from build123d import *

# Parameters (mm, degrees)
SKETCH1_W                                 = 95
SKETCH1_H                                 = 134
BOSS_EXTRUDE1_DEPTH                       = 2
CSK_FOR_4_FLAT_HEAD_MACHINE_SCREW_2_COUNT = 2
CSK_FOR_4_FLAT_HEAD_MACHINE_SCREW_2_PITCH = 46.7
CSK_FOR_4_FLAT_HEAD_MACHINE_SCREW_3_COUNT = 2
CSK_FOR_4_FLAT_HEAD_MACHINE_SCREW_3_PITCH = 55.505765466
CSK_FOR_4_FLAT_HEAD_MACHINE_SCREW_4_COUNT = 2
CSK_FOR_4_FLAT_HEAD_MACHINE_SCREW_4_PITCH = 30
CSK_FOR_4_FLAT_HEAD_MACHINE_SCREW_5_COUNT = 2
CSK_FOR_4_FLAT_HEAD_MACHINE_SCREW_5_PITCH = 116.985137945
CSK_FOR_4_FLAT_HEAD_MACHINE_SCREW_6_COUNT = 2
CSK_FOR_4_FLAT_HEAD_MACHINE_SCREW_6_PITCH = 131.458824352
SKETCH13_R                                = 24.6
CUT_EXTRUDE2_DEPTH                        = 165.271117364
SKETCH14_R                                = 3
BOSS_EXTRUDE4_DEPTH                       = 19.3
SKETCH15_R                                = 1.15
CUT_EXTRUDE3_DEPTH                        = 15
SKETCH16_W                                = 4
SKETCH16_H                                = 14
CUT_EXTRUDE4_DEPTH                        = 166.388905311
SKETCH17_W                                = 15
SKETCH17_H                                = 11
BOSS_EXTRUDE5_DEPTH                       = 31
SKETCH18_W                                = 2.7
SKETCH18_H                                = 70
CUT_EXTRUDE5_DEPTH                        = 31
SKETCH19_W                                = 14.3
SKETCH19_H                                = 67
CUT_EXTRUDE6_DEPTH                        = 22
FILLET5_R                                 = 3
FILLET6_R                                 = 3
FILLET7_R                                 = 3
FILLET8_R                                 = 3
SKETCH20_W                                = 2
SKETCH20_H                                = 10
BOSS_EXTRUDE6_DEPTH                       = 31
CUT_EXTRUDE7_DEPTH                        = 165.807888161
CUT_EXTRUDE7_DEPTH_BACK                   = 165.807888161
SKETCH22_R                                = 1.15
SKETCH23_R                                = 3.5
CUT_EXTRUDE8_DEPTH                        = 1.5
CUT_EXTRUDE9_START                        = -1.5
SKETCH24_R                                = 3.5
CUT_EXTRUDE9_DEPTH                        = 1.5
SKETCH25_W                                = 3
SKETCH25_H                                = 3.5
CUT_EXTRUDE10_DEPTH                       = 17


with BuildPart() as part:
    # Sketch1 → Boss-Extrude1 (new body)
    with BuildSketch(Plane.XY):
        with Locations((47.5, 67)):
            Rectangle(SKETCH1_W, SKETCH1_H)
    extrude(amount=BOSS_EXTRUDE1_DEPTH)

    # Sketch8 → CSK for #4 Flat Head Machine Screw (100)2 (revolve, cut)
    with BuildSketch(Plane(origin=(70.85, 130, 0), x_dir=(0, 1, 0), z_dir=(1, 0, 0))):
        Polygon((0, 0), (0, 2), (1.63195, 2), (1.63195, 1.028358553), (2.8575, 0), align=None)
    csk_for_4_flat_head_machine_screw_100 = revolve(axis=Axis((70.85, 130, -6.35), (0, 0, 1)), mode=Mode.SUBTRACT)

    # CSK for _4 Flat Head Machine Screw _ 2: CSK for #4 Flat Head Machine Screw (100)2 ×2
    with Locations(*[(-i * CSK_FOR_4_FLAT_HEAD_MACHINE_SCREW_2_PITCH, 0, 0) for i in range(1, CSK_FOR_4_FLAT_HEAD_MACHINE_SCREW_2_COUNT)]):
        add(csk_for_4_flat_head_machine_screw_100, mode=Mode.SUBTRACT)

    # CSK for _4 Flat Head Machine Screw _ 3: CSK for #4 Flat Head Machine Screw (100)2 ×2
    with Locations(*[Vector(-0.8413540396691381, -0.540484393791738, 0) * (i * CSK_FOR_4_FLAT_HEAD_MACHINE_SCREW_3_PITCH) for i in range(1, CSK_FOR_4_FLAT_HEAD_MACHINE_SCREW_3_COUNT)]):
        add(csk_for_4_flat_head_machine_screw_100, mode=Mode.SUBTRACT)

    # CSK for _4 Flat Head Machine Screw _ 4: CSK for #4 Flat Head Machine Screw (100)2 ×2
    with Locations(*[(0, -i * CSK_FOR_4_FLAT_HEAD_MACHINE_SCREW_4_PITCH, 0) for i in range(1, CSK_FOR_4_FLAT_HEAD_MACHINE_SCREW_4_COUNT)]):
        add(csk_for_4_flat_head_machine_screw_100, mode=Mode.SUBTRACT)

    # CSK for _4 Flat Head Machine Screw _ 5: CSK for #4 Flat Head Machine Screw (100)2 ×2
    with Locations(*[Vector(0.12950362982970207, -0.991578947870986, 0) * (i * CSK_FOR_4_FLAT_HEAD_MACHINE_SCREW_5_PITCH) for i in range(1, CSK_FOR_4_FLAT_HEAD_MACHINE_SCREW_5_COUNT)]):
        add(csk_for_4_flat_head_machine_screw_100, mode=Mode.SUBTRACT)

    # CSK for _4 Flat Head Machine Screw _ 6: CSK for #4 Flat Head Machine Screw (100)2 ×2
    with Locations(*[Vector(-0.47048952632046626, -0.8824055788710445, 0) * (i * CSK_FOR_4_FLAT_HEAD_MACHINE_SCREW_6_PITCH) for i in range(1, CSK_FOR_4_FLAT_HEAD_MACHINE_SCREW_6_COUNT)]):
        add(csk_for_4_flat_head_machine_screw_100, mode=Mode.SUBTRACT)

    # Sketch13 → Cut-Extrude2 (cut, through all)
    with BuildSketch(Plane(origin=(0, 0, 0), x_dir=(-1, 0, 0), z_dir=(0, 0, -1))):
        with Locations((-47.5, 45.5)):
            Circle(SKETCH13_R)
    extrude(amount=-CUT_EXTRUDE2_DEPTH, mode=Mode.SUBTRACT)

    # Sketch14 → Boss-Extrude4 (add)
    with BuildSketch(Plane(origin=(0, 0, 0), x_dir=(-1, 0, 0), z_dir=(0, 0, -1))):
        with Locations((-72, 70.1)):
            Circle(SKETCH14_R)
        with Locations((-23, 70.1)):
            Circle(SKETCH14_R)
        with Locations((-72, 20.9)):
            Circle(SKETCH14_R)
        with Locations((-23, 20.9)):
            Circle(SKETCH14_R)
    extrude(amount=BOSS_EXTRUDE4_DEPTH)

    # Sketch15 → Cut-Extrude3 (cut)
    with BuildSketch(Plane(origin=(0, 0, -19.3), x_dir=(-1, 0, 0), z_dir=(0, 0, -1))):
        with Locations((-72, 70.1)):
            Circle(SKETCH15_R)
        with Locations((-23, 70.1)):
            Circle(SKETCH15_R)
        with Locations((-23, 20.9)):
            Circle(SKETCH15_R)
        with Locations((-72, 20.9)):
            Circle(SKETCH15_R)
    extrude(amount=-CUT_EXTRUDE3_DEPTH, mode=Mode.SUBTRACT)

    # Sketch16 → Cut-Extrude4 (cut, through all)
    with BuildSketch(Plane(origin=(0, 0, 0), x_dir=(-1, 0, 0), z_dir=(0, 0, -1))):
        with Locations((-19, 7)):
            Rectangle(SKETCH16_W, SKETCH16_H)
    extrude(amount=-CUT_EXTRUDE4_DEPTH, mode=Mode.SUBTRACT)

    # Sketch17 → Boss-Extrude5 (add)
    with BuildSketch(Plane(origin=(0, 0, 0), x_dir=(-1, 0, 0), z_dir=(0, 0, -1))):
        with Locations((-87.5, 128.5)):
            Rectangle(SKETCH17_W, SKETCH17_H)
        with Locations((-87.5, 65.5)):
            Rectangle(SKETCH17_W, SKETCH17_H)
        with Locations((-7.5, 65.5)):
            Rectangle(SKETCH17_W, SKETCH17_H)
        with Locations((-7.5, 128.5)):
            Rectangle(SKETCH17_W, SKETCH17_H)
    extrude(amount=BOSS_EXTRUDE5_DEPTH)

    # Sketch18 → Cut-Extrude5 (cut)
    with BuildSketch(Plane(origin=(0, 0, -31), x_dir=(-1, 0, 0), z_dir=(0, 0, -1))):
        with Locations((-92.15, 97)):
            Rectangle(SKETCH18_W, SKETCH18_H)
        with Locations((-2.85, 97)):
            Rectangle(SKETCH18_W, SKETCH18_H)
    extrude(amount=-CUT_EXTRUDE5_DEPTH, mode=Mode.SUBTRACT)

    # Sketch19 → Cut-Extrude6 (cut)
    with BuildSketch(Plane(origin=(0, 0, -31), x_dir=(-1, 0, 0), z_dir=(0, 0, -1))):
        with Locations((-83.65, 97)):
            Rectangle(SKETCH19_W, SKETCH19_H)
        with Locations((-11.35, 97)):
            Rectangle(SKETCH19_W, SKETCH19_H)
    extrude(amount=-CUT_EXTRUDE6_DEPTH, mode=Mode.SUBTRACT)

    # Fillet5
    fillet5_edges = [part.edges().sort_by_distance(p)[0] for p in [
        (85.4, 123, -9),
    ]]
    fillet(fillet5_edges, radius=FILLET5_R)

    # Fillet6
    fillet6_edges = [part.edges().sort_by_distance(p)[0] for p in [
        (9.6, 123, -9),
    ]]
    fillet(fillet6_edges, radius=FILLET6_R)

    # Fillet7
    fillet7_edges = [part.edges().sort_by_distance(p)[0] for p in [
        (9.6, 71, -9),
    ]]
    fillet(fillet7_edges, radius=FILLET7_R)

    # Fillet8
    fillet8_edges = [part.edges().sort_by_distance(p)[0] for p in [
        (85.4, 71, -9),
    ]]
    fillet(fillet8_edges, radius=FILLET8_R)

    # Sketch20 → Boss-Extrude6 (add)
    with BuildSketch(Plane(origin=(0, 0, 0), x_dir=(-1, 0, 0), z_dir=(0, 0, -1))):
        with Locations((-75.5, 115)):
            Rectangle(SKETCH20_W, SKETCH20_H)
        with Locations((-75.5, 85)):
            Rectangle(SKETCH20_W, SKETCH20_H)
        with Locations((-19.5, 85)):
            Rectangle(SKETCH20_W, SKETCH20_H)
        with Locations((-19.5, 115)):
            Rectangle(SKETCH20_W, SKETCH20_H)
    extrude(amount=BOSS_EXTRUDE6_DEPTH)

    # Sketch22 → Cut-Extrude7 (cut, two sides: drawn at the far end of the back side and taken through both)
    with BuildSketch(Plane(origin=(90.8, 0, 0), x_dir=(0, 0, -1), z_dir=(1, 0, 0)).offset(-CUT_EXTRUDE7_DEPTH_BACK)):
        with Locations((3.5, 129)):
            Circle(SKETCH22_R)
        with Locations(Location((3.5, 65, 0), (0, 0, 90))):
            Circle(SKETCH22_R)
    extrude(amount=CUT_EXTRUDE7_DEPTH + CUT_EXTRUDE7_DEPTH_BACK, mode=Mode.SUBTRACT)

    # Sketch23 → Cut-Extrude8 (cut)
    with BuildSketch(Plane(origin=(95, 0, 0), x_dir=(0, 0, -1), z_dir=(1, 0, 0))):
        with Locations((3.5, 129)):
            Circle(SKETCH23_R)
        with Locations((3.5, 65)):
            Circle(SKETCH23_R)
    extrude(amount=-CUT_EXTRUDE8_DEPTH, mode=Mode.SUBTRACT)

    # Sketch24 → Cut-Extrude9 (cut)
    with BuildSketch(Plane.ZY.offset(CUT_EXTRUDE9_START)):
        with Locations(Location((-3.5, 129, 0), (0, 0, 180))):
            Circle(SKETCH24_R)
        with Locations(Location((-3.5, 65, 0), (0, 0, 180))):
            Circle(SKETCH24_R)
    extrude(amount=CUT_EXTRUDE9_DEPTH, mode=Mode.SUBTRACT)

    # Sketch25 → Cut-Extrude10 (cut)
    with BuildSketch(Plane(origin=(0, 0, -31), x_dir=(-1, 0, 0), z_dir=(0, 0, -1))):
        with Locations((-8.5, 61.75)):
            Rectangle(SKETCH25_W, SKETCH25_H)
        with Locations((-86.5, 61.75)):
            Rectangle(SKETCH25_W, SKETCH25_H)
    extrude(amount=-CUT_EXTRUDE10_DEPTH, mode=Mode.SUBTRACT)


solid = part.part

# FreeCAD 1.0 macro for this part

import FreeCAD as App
import Part
import Sketcher
from FreeCAD import Vector
Q = App.Units.Quantity


def edges_at(feature, points):
    """Names of the edges that pass closest to the given points."""
    edges = feature.Shape.Edges
    near = lambda p: min(range(len(edges)), key=lambda i: edges[i].distToShape(Part.Vertex(*p))[0])
    return sorted({f"Edge{near(p) + 1}" for p in points})

doc = App.newDocument("Part")
body = doc.addObject("PartDesign::Body", "Body")

# Sketch on XY plane
sketch1 = doc.addObject("Sketcher::SketchObject", "Sketch")
body.addObject(sketch1)
sketch1.AttachmentSupport = (doc.XY_Plane, [""])
sketch1.MapMode = "FlatFace"
sketch1.addGeometry(Part.LineSegment(Vector(0, 134, 0), Vector(0, 0, 0)), False)
sketch1.addGeometry(Part.LineSegment(Vector(0, 0, 0), Vector(95, 0, 0)), False)
sketch1.addGeometry(Part.LineSegment(Vector(95, 0, 0), Vector(95, 134, 0)), False)
sketch1.addGeometry(Part.LineSegment(Vector(95, 134, 0), Vector(0, 134, 0)), False)
sketch1.addConstraint(Sketcher.Constraint("Coincident", 0, 2, 1, 1))
sketch1.addConstraint(Sketcher.Constraint("Coincident", 1, 2, 2, 1))
sketch1.addConstraint(Sketcher.Constraint("Coincident", 2, 2, 3, 1))
sketch1.addConstraint(Sketcher.Constraint("Coincident", 3, 2, 0, 1))
sketch1.addConstraint(Sketcher.Constraint("Vertical", 0))
sketch1.addConstraint(Sketcher.Constraint("Horizontal", 1))
sketch1.addConstraint(Sketcher.Constraint("Vertical", 2))
sketch1.addConstraint(Sketcher.Constraint("Horizontal", 3))
sketch1.addConstraint(Sketcher.Constraint("Coincident", 0, 2, -1, 1))
sketch1.addConstraint(Sketcher.Constraint("DistanceX", 1, 1, 1, 2, Q("95 mm")))
sketch1.addConstraint(Sketcher.Constraint("DistanceY", 0, 2, 0, 1, Q("134 mm")))
pad1 = doc.addObject("PartDesign::Pad", "Pad")
body.addObject(pad1)
pad1.Profile = sketch1
pad1.Length = 2

# Sketch on YZ plane
sketch2 = doc.addObject("Sketcher::SketchObject", "Sketch001")
body.addObject(sketch2)
sketch2.AttachmentSupport = (doc.YZ_Plane, [""])
sketch2.MapMode = "FlatFace"
sketch2.AttachmentOffset = App.Placement(Vector(0, 0, 70.85), App.Rotation())
sketch2.addGeometry(Part.LineSegment(Vector(130, 2, 0), Vector(130, 0, 0)), False)
sketch2.addGeometry(Part.LineSegment(Vector(130, 0, 0), Vector(132.9, 0, 0)), False)
sketch2.addGeometry(Part.LineSegment(Vector(132.9, 0, 0), Vector(131.6, 1, 0)), False)
sketch2.addGeometry(Part.LineSegment(Vector(131.6, 1, 0), Vector(131.6, 2, 0)), False)
sketch2.addGeometry(Part.LineSegment(Vector(131.6, 2, 0), Vector(130, 2, 0)), False)
sketch2.addGeometry(Part.LineSegment(Vector(130, 0, 0), Vector(130, 2, 0)), True)  # axis
sketch2.addConstraint(Sketcher.Constraint("Coincident", 0, 2, 1, 1))
sketch2.addConstraint(Sketcher.Constraint("Coincident", 1, 2, 2, 1))
sketch2.addConstraint(Sketcher.Constraint("Coincident", 2, 2, 3, 1))
sketch2.addConstraint(Sketcher.Constraint("Coincident", 3, 2, 4, 1))
sketch2.addConstraint(Sketcher.Constraint("Coincident", 4, 2, 0, 1))
sketch2.addConstraint(Sketcher.Constraint("Vertical", 0))
sketch2.addConstraint(Sketcher.Constraint("Horizontal", 1))
sketch2.addConstraint(Sketcher.Constraint("Vertical", 3))
sketch2.addConstraint(Sketcher.Constraint("Horizontal", 4))
sketch2.addConstraint(Sketcher.Constraint("Vertical", 5))
sketch2.addConstraint(Sketcher.Constraint("Coincident", 5, 1, 0, 2))
sketch2.addConstraint(Sketcher.Constraint("PointOnObject", 0, 2, -1))
sketch2.addConstraint(Sketcher.Constraint("Horizontal", 3, 2, 5, 2))
sketch2.addConstraint(Sketcher.Constraint("DistanceY", 0, 2, 0, 1, Q("2 mm")))
sketch2.addConstraint(Sketcher.Constraint("Angle", 2, Q("140 deg")))
sketch2.addConstraint(Sketcher.Constraint("DistanceX", -1, 1, 0, 2, Q("130 mm")))
sketch2.addConstraint(Sketcher.Constraint("DistanceX", 1, 1, 1, 2, Q("2.8575 mm")))
sketch2.addConstraint(Sketcher.Constraint("DistanceX", 4, 2, 4, 1, Q("1.63195 mm")))
groove = doc.addObject("PartDesign::Groove", "Groove")
body.addObject(groove)
groove.Profile = sketch2
groove.ReferenceAxis = (sketch2, ["Axis0"])
groove.Angle = 360
doc.recompute()

linearpattern = doc.addObject("PartDesign::LinearPattern", "LinearPattern")
body.addObject(linearpattern)
linearpattern.Originals = [groove]
linearpattern.Direction = (doc.X_Axis, [""])
linearpattern.Mode = "offset"
linearpattern.Offset = 46.7
linearpattern.Occurrences = 2
linearpattern.Reversed = True
body.Tip = linearpattern
doc.recompute()

datumline = doc.addObject("PartDesign::Line", "DatumLine")
body.addObject(datumline)
datumline.Placement = App.Placement(Vector(0, 0, 0), App.Rotation(Vector(0, 0, 1), Vector(-0.84135404, -0.540484394, 0)))
linearpattern2 = doc.addObject("PartDesign::LinearPattern", "LinearPattern001")
body.addObject(linearpattern2)
linearpattern2.Originals = [groove]
linearpattern2.Direction = (datumline, [""])
linearpattern2.Mode = "offset"
linearpattern2.Offset = 55.505765
linearpattern2.Occurrences = 2
body.Tip = linearpattern2
doc.recompute()

linearpattern3 = doc.addObject("PartDesign::LinearPattern", "LinearPattern002")
body.addObject(linearpattern3)
linearpattern3.Originals = [groove]
linearpattern3.Direction = (doc.Y_Axis, [""])
linearpattern3.Mode = "offset"
linearpattern3.Offset = 30
linearpattern3.Occurrences = 2
linearpattern3.Reversed = True
body.Tip = linearpattern3
doc.recompute()

datumline2 = doc.addObject("PartDesign::Line", "DatumLine001")
body.addObject(datumline2)
datumline2.Placement = App.Placement(Vector(0, 0, 0), App.Rotation(Vector(0, 0, 1), Vector(0.12950363, -0.991578948, 0)))
linearpattern4 = doc.addObject("PartDesign::LinearPattern", "LinearPattern003")
body.addObject(linearpattern4)
linearpattern4.Originals = [groove]
linearpattern4.Direction = (datumline2, [""])
linearpattern4.Mode = "offset"
linearpattern4.Offset = 116.985138
linearpattern4.Occurrences = 2
body.Tip = linearpattern4
doc.recompute()

datumline3 = doc.addObject("PartDesign::Line", "DatumLine002")
body.addObject(datumline3)
datumline3.Placement = App.Placement(Vector(0, 0, 0), App.Rotation(Vector(0, 0, 1), Vector(-0.470489526, -0.882405579, 0)))
linearpattern5 = doc.addObject("PartDesign::LinearPattern", "LinearPattern004")
body.addObject(linearpattern5)
linearpattern5.Originals = [groove]
linearpattern5.Direction = (datumline3, [""])
linearpattern5.Mode = "offset"
linearpattern5.Offset = 131.458824
linearpattern5.Occurrences = 2
body.Tip = linearpattern5

# Sketch on XY plane
sketch3 = doc.addObject("Sketcher::SketchObject", "Sketch002")
body.addObject(sketch3)
sketch3.AttachmentSupport = (doc.XY_Plane, [""])
sketch3.MapMode = "FlatFace"
sketch3.addGeometry(Part.Circle(Vector(48, 46, 0), Vector(0, 0, 1), 25), False)
sketch3.addConstraint(Sketcher.Constraint("Diameter", 0, Q("49.2 mm")))
sketch3.addConstraint(Sketcher.Constraint("DistanceX", -1, 1, 0, 3, Q("47.5 mm")))
sketch3.addConstraint(Sketcher.Constraint("DistanceY", -1, 1, 0, 3, Q("45.5 mm")))
pocket1 = doc.addObject("PartDesign::Pocket", "Pocket")
body.addObject(pocket1)
pocket1.Profile = sketch3
pocket1.Type = "ThroughAll"
pocket1.Reversed = True

# Sketch on XY plane
sketch4 = doc.addObject("Sketcher::SketchObject", "Sketch003")
body.addObject(sketch4)
sketch4.AttachmentSupport = (doc.XY_Plane, [""])
sketch4.MapMode = "FlatFace"
sketch4.addGeometry(Part.Circle(Vector(72, 70.1, 0), Vector(0, 0, 1), 3), False)
sketch4.addGeometry(Part.Circle(Vector(23, 70.1, 0), Vector(0, 0, 1), 3), False)
sketch4.addGeometry(Part.Circle(Vector(72, 20.9, 0), Vector(0, 0, 1), 3), False)
sketch4.addGeometry(Part.Circle(Vector(23, 20.9, 0), Vector(0, 0, 1), 3), False)
sketch4.addConstraint(Sketcher.Constraint("Equal", 0, 1))
sketch4.addConstraint(Sketcher.Constraint("Equal", 1, 2))
sketch4.addConstraint(Sketcher.Constraint("Equal", 2, 3))
sketch4.addConstraint(Sketcher.Constraint("Horizontal", 0, 3, 1, 3))
sketch4.addConstraint(Sketcher.Constraint("Horizontal", 2, 3, 3, 3))
sketch4.addConstraint(Sketcher.Constraint("Vertical", 0, 3, 2, 3))
sketch4.addConstraint(Sketcher.Constraint("Vertical", 1, 3, 3, 3))
sketch4.addConstraint(Sketcher.Constraint("Diameter", 0, Q("6 mm")))
sketch4.addConstraint(Sketcher.Constraint("DistanceX", -1, 1, 0, 3, Q("72 mm")))
sketch4.addConstraint(Sketcher.Constraint("DistanceX", -1, 1, 1, 3, Q("23 mm")))
sketch4.addConstraint(Sketcher.Constraint("DistanceY", -1, 1, 0, 3, Q("70.1 mm")))
sketch4.addConstraint(Sketcher.Constraint("DistanceY", -1, 1, 2, 3, Q("20.9 mm")))
pad2 = doc.addObject("PartDesign::Pad", "Pad001")
body.addObject(pad2)
pad2.Profile = sketch4
pad2.Length = 19.3
pad2.Reversed = True

# Sketch on XY plane
sketch5 = doc.addObject("Sketcher::SketchObject", "Sketch004")
body.addObject(sketch5)
sketch5.AttachmentSupport = (doc.XY_Plane, [""])
sketch5.MapMode = "FlatFace"
sketch5.AttachmentOffset = App.Placement(Vector(0, 0, -19.3), App.Rotation())
sketch5.addGeometry(Part.Circle(Vector(72, 70.1, 0), Vector(0, 0, 1), 1.1), False)
sketch5.addGeometry(Part.Circle(Vector(23, 70.1, 0), Vector(0, 0, 1), 1.1), False)
sketch5.addGeometry(Part.Circle(Vector(23, 20.9, 0), Vector(0, 0, 1), 1.1), False)
sketch5.addGeometry(Part.Circle(Vector(72, 20.9, 0), Vector(0, 0, 1), 1.1), False)
sketch5.addConstraint(Sketcher.Constraint("Equal", 0, 1))
sketch5.addConstraint(Sketcher.Constraint("Equal", 1, 2))
sketch5.addConstraint(Sketcher.Constraint("Equal", 2, 3))
sketch5.addConstraint(Sketcher.Constraint("Horizontal", 0, 3, 1, 3))
sketch5.addConstraint(Sketcher.Constraint("Horizontal", 2, 3, 3, 3))
sketch5.addConstraint(Sketcher.Constraint("Vertical", 1, 3, 2, 3))
sketch5.addConstraint(Sketcher.Constraint("Vertical", 0, 3, 3, 3))
sketch5.addConstraint(Sketcher.Constraint("Diameter", 0, Q("2.3 mm")))
sketch5.addConstraint(Sketcher.Constraint("DistanceX", -1, 1, 0, 3, Q("72 mm")))
sketch5.addConstraint(Sketcher.Constraint("DistanceX", -1, 1, 1, 3, Q("23 mm")))
sketch5.addConstraint(Sketcher.Constraint("DistanceY", -1, 1, 0, 3, Q("70.1 mm")))
sketch5.addConstraint(Sketcher.Constraint("DistanceY", -1, 1, 2, 3, Q("20.9 mm")))
pocket2 = doc.addObject("PartDesign::Pocket", "Pocket001")
body.addObject(pocket2)
pocket2.Profile = sketch5
pocket2.Length = 15
pocket2.Reversed = True

# Sketch on XY plane
sketch6 = doc.addObject("Sketcher::SketchObject", "Sketch005")
body.addObject(sketch6)
sketch6.AttachmentSupport = (doc.XY_Plane, [""])
sketch6.MapMode = "FlatFace"
sketch6.addGeometry(Part.LineSegment(Vector(21, 14, 0), Vector(21, 0, 0)), False)
sketch6.addGeometry(Part.LineSegment(Vector(21, 0, 0), Vector(17, 0, 0)), False)
sketch6.addGeometry(Part.LineSegment(Vector(17, 0, 0), Vector(17, 14, 0)), False)
sketch6.addGeometry(Part.LineSegment(Vector(17, 14, 0), Vector(21, 14, 0)), False)
sketch6.addConstraint(Sketcher.Constraint("Coincident", 0, 2, 1, 1))
sketch6.addConstraint(Sketcher.Constraint("Coincident", 1, 2, 2, 1))
sketch6.addConstraint(Sketcher.Constraint("Coincident", 2, 2, 3, 1))
sketch6.addConstraint(Sketcher.Constraint("Coincident", 3, 2, 0, 1))
sketch6.addConstraint(Sketcher.Constraint("Vertical", 0))
sketch6.addConstraint(Sketcher.Constraint("Horizontal", 1))
sketch6.addConstraint(Sketcher.Constraint("Vertical", 2))
sketch6.addConstraint(Sketcher.Constraint("Horizontal", 3))
sketch6.addConstraint(Sketcher.Constraint("PointOnObject", 0, 2, -1))
sketch6.addConstraint(Sketcher.Constraint("DistanceX", 1, 2, 1, 1, Q("4 mm")))
sketch6.addConstraint(Sketcher.Constraint("DistanceY", 0, 2, 0, 1, Q("14 mm")))
sketch6.addConstraint(Sketcher.Constraint("DistanceX", -1, 1, 0, 2, Q("21 mm")))
pocket3 = doc.addObject("PartDesign::Pocket", "Pocket002")
body.addObject(pocket3)
pocket3.Profile = sketch6
pocket3.Type = "ThroughAll"
pocket3.Reversed = True

# Sketch on XY plane
sketch7 = doc.addObject("Sketcher::SketchObject", "Sketch006")
body.addObject(sketch7)
sketch7.AttachmentSupport = (doc.XY_Plane, [""])
sketch7.MapMode = "FlatFace"
sketch7.addGeometry(Part.LineSegment(Vector(95, 134, 0), Vector(95, 123, 0)), False)
sketch7.addGeometry(Part.LineSegment(Vector(95, 123, 0), Vector(80, 123, 0)), False)
sketch7.addGeometry(Part.LineSegment(Vector(80, 123, 0), Vector(80, 134, 0)), False)
sketch7.addGeometry(Part.LineSegment(Vector(80, 134, 0), Vector(95, 134, 0)), False)
sketch7.addGeometry(Part.LineSegment(Vector(95, 71, 0), Vector(95, 60, 0)), False)
sketch7.addGeometry(Part.LineSegment(Vector(95, 60, 0), Vector(80, 60, 0)), False)
sketch7.addGeometry(Part.LineSegment(Vector(80, 60, 0), Vector(80, 71, 0)), False)
sketch7.addGeometry(Part.LineSegment(Vector(80, 71, 0), Vector(95, 71, 0)), False)
sketch7.addGeometry(Part.LineSegment(Vector(15, 71, 0), Vector(15, 60, 0)), False)
sketch7.addGeometry(Part.LineSegment(Vector(15, 60, 0), Vector(0, 60, 0)), False)
sketch7.addGeometry(Part.LineSegment(Vector(0, 60, 0), Vector(0, 71, 0)), False)
sketch7.addGeometry(Part.LineSegment(Vector(0, 71, 0), Vector(15, 71, 0)), False)
sketch7.addGeometry(Part.LineSegment(Vector(15, 134, 0), Vector(15, 123, 0)), False)
sketch7.addGeometry(Part.LineSegment(Vector(15, 123, 0), Vector(0, 123, 0)), False)
sketch7.addGeometry(Part.LineSegment(Vector(0, 123, 0), Vector(0, 134, 0)), False)
sketch7.addGeometry(Part.LineSegment(Vector(0, 134, 0), Vector(15, 134, 0)), False)
sketch7.addConstraint(Sketcher.Constraint("Coincident", 0, 2, 1, 1))
sketch7.addConstraint(Sketcher.Constraint("Coincident", 1, 2, 2, 1))
sketch7.addConstraint(Sketcher.Constraint("Coincident", 2, 2, 3, 1))
sketch7.addConstraint(Sketcher.Constraint("Coincident", 3, 2, 0, 1))
sketch7.addConstraint(Sketcher.Constraint("Coincident", 4, 2, 5, 1))
sketch7.addConstraint(Sketcher.Constraint("Coincident", 5, 2, 6, 1))
sketch7.addConstraint(Sketcher.Constraint("Coincident", 6, 2, 7, 1))
sketch7.addConstraint(Sketcher.Constraint("Coincident", 7, 2, 4, 1))
sketch7.addConstraint(Sketcher.Constraint("Coincident", 8, 2, 9, 1))
sketch7.addConstraint(Sketcher.Constraint("Coincident", 9, 2, 10, 1))
sketch7.addConstraint(Sketcher.Constraint("Coincident", 10, 2, 11, 1))
sketch7.addConstraint(Sketcher.Constraint("Coincident", 11, 2, 8, 1))
sketch7.addConstraint(Sketcher.Constraint("Coincident", 12, 2, 13, 1))
sketch7.addConstraint(Sketcher.Constraint("Coincident", 13, 2, 14, 1))
sketch7.addConstraint(Sketcher.Constraint("Coincident", 14, 2, 15, 1))
sketch7.addConstraint(Sketcher.Constraint("Coincident", 15, 2, 12, 1))
sketch7.addConstraint(Sketcher.Constraint("Vertical", 0))
sketch7.addConstraint(Sketcher.Constraint("Horizontal", 1))
sketch7.addConstraint(Sketcher.Constraint("Vertical", 2))
sketch7.addConstraint(Sketcher.Constraint("Horizontal", 3))
sketch7.addConstraint(Sketcher.Constraint("Vertical", 4))
sketch7.addConstraint(Sketcher.Constraint("Horizontal", 5))
sketch7.addConstraint(Sketcher.Constraint("Vertical", 6))
sketch7.addConstraint(Sketcher.Constraint("Horizontal", 7))
sketch7.addConstraint(Sketcher.Constraint("Vertical", 8))
sketch7.addConstraint(Sketcher.Constraint("Horizontal", 9))
sketch7.addConstraint(Sketcher.Constraint("Vertical", 10))
sketch7.addConstraint(Sketcher.Constraint("Horizontal", 11))
sketch7.addConstraint(Sketcher.Constraint("Vertical", 12))
sketch7.addConstraint(Sketcher.Constraint("Horizontal", 13))
sketch7.addConstraint(Sketcher.Constraint("Vertical", 14))
sketch7.addConstraint(Sketcher.Constraint("Horizontal", 15))
sketch7.addConstraint(Sketcher.Constraint("PointOnObject", 9, 2, -2))
sketch7.addConstraint(Sketcher.Constraint("PointOnObject", 13, 2, -2))
sketch7.addConstraint(Sketcher.Constraint("Horizontal", 5, 2, 8, 2))
sketch7.addConstraint(Sketcher.Constraint("Horizontal", 7, 2, 10, 2))
sketch7.addConstraint(Sketcher.Constraint("Horizontal", 1, 2, 12, 2))
sketch7.addConstraint(Sketcher.Constraint("Horizontal", 3, 2, 14, 2))
sketch7.addConstraint(Sketcher.Constraint("Vertical", 3, 2, 4, 2))
sketch7.addConstraint(Sketcher.Constraint("Vertical", 2, 2, 5, 2))
sketch7.addConstraint(Sketcher.Constraint("Vertical", 11, 2, 12, 2))
sketch7.addConstraint(Sketcher.Constraint("Equal", 7, 9))
sketch7.addConstraint(Sketcher.Constraint("Equal", 2, 4))
sketch7.addConstraint(Sketcher.Constraint("DistanceX", 1, 2, 1, 1, Q("15 mm")))
sketch7.addConstraint(Sketcher.Constraint("DistanceY", 0, 2, 0, 1, Q("11 mm")))
sketch7.addConstraint(Sketcher.Constraint("DistanceX", -1, 1, 0, 2, Q("95 mm")))
sketch7.addConstraint(Sketcher.Constraint("DistanceY", -1, 1, 0, 2, Q("123 mm")))
sketch7.addConstraint(Sketcher.Constraint("DistanceY", -1, 1, 4, 2, Q("60 mm")))
pad3 = doc.addObject("PartDesign::Pad", "Pad002")
body.addObject(pad3)
pad3.Profile = sketch7
pad3.Length = 31
pad3.Reversed = True

# Sketch on XY plane
sketch8 = doc.addObject("Sketcher::SketchObject", "Sketch007")
body.addObject(sketch8)
sketch8.AttachmentSupport = (doc.XY_Plane, [""])
sketch8.MapMode = "FlatFace"
sketch8.AttachmentOffset = App.Placement(Vector(0, 0, -31), App.Rotation())
sketch8.addGeometry(Part.LineSegment(Vector(93.5, 132, 0), Vector(93.5, 62, 0)), False)
sketch8.addGeometry(Part.LineSegment(Vector(93.5, 62, 0), Vector(90.8, 62, 0)), False)
sketch8.addGeometry(Part.LineSegment(Vector(90.8, 62, 0), Vector(90.8, 132, 0)), False)
sketch8.addGeometry(Part.LineSegment(Vector(90.8, 132, 0), Vector(93.5, 132, 0)), False)
sketch8.addGeometry(Part.LineSegment(Vector(4.2, 132, 0), Vector(4.2, 62, 0)), False)
sketch8.addGeometry(Part.LineSegment(Vector(4.2, 62, 0), Vector(1.5, 62, 0)), False)
sketch8.addGeometry(Part.LineSegment(Vector(1.5, 62, 0), Vector(1.5, 132, 0)), False)
sketch8.addGeometry(Part.LineSegment(Vector(1.5, 132, 0), Vector(4.2, 132, 0)), False)
sketch8.addConstraint(Sketcher.Constraint("Coincident", 0, 2, 1, 1))
sketch8.addConstraint(Sketcher.Constraint("Coincident", 1, 2, 2, 1))
sketch8.addConstraint(Sketcher.Constraint("Coincident", 2, 2, 3, 1))
sketch8.addConstraint(Sketcher.Constraint("Coincident", 3, 2, 0, 1))
sketch8.addConstraint(Sketcher.Constraint("Coincident", 4, 2, 5, 1))
sketch8.addConstraint(Sketcher.Constraint("Coincident", 5, 2, 6, 1))
sketch8.addConstraint(Sketcher.Constraint("Coincident", 6, 2, 7, 1))
sketch8.addConstraint(Sketcher.Constraint("Coincident", 7, 2, 4, 1))
sketch8.addConstraint(Sketcher.Constraint("Vertical", 0))
sketch8.addConstraint(Sketcher.Constraint("Horizontal", 1))
sketch8.addConstraint(Sketcher.Constraint("Vertical", 2))
sketch8.addConstraint(Sketcher.Constraint("Horizontal", 3))
sketch8.addConstraint(Sketcher.Constraint("Vertical", 4))
sketch8.addConstraint(Sketcher.Constraint("Horizontal", 5))
sketch8.addConstraint(Sketcher.Constraint("Vertical", 6))
sketch8.addConstraint(Sketcher.Constraint("Horizontal", 7))
sketch8.addConstraint(Sketcher.Constraint("Horizontal", 1, 2, 4, 2))
sketch8.addConstraint(Sketcher.Constraint("Horizontal", 3, 2, 6, 2))
sketch8.addConstraint(Sketcher.Constraint("Equal", 3, 5))
sketch8.addConstraint(Sketcher.Constraint("DistanceY", 0, 2, 0, 1, Q("70 mm")))
sketch8.addConstraint(Sketcher.Constraint("DistanceX", 1, 2, 1, 1, Q("2.7 mm")))
sketch8.addConstraint(Sketcher.Constraint("DistanceY", -1, 1, 0, 2, Q("62 mm")))
sketch8.addConstraint(Sketcher.Constraint("DistanceX", 5, 2, 0, 2, Q("92 mm")))
sketch8.addConstraint(Sketcher.Constraint("DistanceX", -1, 1, 0, 2, Q("93.5 mm")))
pocket4 = doc.addObject("PartDesign::Pocket", "Pocket003")
body.addObject(pocket4)
pocket4.Profile = sketch8
pocket4.Length = 31
pocket4.Reversed = True

# Sketch on XY plane
sketch9 = doc.addObject("Sketcher::SketchObject", "Sketch008")
body.addObject(sketch9)
sketch9.AttachmentSupport = (doc.XY_Plane, [""])
sketch9.MapMode = "FlatFace"
sketch9.AttachmentOffset = App.Placement(Vector(0, 0, -31), App.Rotation())
sketch9.addGeometry(Part.LineSegment(Vector(91, 130, 0), Vector(91, 64, 0)), False)
sketch9.addGeometry(Part.LineSegment(Vector(91, 64, 0), Vector(76, 64, 0)), False)
sketch9.addGeometry(Part.LineSegment(Vector(76, 64, 0), Vector(76, 130, 0)), False)
sketch9.addGeometry(Part.LineSegment(Vector(76, 130, 0), Vector(91, 130, 0)), False)
sketch9.addGeometry(Part.LineSegment(Vector(18, 130, 0), Vector(18, 64, 0)), False)
sketch9.addGeometry(Part.LineSegment(Vector(18, 64, 0), Vector(4, 64, 0)), False)
sketch9.addGeometry(Part.LineSegment(Vector(4, 64, 0), Vector(4, 130, 0)), False)
sketch9.addGeometry(Part.LineSegment(Vector(4, 130, 0), Vector(18, 130, 0)), False)
sketch9.addConstraint(Sketcher.Constraint("Coincident", 0, 2, 1, 1))
sketch9.addConstraint(Sketcher.Constraint("Coincident", 1, 2, 2, 1))
sketch9.addConstraint(Sketcher.Constraint("Coincident", 2, 2, 3, 1))
sketch9.addConstraint(Sketcher.Constraint("Coincident", 3, 2, 0, 1))
sketch9.addConstraint(Sketcher.Constraint("Coincident", 4, 2, 5, 1))
sketch9.addConstraint(Sketcher.Constraint("Coincident", 5, 2, 6, 1))
sketch9.addConstraint(Sketcher.Constraint("Coincident", 6, 2, 7, 1))
sketch9.addConstraint(Sketcher.Constraint("Coincident", 7, 2, 4, 1))
sketch9.addConstraint(Sketcher.Constraint("Vertical", 0))
sketch9.addConstraint(Sketcher.Constraint("Horizontal", 1))
sketch9.addConstraint(Sketcher.Constraint("Vertical", 2))
sketch9.addConstraint(Sketcher.Constraint("Horizontal", 3))
sketch9.addConstraint(Sketcher.Constraint("Vertical", 4))
sketch9.addConstraint(Sketcher.Constraint("Horizontal", 5))
sketch9.addConstraint(Sketcher.Constraint("Vertical", 6))
sketch9.addConstraint(Sketcher.Constraint("Horizontal", 7))
sketch9.addConstraint(Sketcher.Constraint("Horizontal", 1, 2, 4, 2))
sketch9.addConstraint(Sketcher.Constraint("Horizontal", 3, 2, 6, 2))
sketch9.addConstraint(Sketcher.Constraint("Equal", 3, 5))
sketch9.addConstraint(Sketcher.Constraint("DistanceY", 0, 2, 0, 1, Q("67 mm")))
sketch9.addConstraint(Sketcher.Constraint("DistanceX", 1, 2, 1, 1, Q("14.3 mm")))
sketch9.addConstraint(Sketcher.Constraint("DistanceX", 4, 2, 1, 2, Q("58 mm")))
sketch9.addConstraint(Sketcher.Constraint("DistanceX", -1, 1, 0, 2, Q("90.8 mm")))
sketch9.addConstraint(Sketcher.Constraint("DistanceY", -1, 1, 0, 2, Q("63.5 mm")))
pocket5 = doc.addObject("PartDesign::Pocket", "Pocket004")
body.addObject(pocket5)
pocket5.Profile = sketch9
pocket5.Length = 22
pocket5.Reversed = True
doc.recompute()

fillet = doc.addObject("PartDesign::Fillet", "Fillet")
body.addObject(fillet)
fillet.Base = (pocket5, edges_at(pocket5, [(85.4, 123, -9)]))
fillet.Radius = 3
doc.recompute()

fillet2 = doc.addObject("PartDesign::Fillet", "Fillet001")
body.addObject(fillet2)
fillet2.Base = (fillet, edges_at(fillet, [(9.6, 123, -9)]))
fillet2.Radius = 3
doc.recompute()

fillet3 = doc.addObject("PartDesign::Fillet", "Fillet002")
body.addObject(fillet3)
fillet3.Base = (fillet2, edges_at(fillet2, [(9.6, 71, -9)]))
fillet3.Radius = 3
doc.recompute()

fillet4 = doc.addObject("PartDesign::Fillet", "Fillet003")
body.addObject(fillet4)
fillet4.Base = (fillet3, edges_at(fillet3, [(85.4, 71, -9)]))
fillet4.Radius = 3

# Sketch on XY plane
sketch10 = doc.addObject("Sketcher::SketchObject", "Sketch009")
body.addObject(sketch10)
sketch10.AttachmentSupport = (doc.XY_Plane, [""])
sketch10.MapMode = "FlatFace"
sketch10.addGeometry(Part.LineSegment(Vector(76.5, 120, 0), Vector(76.5, 110, 0)), False)
sketch10.addGeometry(Part.LineSegment(Vector(76.5, 110, 0), Vector(74.5, 110, 0)), False)
sketch10.addGeometry(Part.LineSegment(Vector(74.5, 110, 0), Vector(74.5, 120, 0)), False)
sketch10.addGeometry(Part.LineSegment(Vector(74.5, 120, 0), Vector(76.5, 120, 0)), False)
sketch10.addGeometry(Part.LineSegment(Vector(76.5, 90, 0), Vector(76.5, 80, 0)), False)
sketch10.addGeometry(Part.LineSegment(Vector(76.5, 80, 0), Vector(74.5, 80, 0)), False)
sketch10.addGeometry(Part.LineSegment(Vector(74.5, 80, 0), Vector(74.5, 90, 0)), False)
sketch10.addGeometry(Part.LineSegment(Vector(74.5, 90, 0), Vector(76.5, 90, 0)), False)
sketch10.addGeometry(Part.LineSegment(Vector(20.5, 90, 0), Vector(20.5, 80, 0)), False)
sketch10.addGeometry(Part.LineSegment(Vector(20.5, 80, 0), Vector(18.5, 80, 0)), False)
sketch10.addGeometry(Part.LineSegment(Vector(18.5, 80, 0), Vector(18.5, 90, 0)), False)
sketch10.addGeometry(Part.LineSegment(Vector(18.5, 90, 0), Vector(20.5, 90, 0)), False)
sketch10.addGeometry(Part.LineSegment(Vector(20.5, 120, 0), Vector(20.5, 110, 0)), False)
sketch10.addGeometry(Part.LineSegment(Vector(20.5, 110, 0), Vector(18.5, 110, 0)), False)
sketch10.addGeometry(Part.LineSegment(Vector(18.5, 110, 0), Vector(18.5, 120, 0)), False)
sketch10.addGeometry(Part.LineSegment(Vector(18.5, 120, 0), Vector(20.5, 120, 0)), False)
sketch10.addConstraint(Sketcher.Constraint("Coincident", 0, 2, 1, 1))
sketch10.addConstraint(Sketcher.Constraint("Coincident", 1, 2, 2, 1))
sketch10.addConstraint(Sketcher.Constraint("Coincident", 2, 2, 3, 1))
sketch10.addConstraint(Sketcher.Constraint("Coincident", 3, 2, 0, 1))
sketch10.addConstraint(Sketcher.Constraint("Coincident", 4, 2, 5, 1))
sketch10.addConstraint(Sketcher.Constraint("Coincident", 5, 2, 6, 1))
sketch10.addConstraint(Sketcher.Constraint("Coincident", 6, 2, 7, 1))
sketch10.addConstraint(Sketcher.Constraint("Coincident", 7, 2, 4, 1))
sketch10.addConstraint(Sketcher.Constraint("Coincident", 8, 2, 9, 1))
sketch10.addConstraint(Sketcher.Constraint("Coincident", 9, 2, 10, 1))
sketch10.addConstraint(Sketcher.Constraint("Coincident", 10, 2, 11, 1))
sketch10.addConstraint(Sketcher.Constraint("Coincident", 11, 2, 8, 1))
sketch10.addConstraint(Sketcher.Constraint("Coincident", 12, 2, 13, 1))
sketch10.addConstraint(Sketcher.Constraint("Coincident", 13, 2, 14, 1))
sketch10.addConstraint(Sketcher.Constraint("Coincident", 14, 2, 15, 1))
sketch10.addConstraint(Sketcher.Constraint("Coincident", 15, 2, 12, 1))
sketch10.addConstraint(Sketcher.Constraint("Vertical", 0))
sketch10.addConstraint(Sketcher.Constraint("Horizontal", 1))
sketch10.addConstraint(Sketcher.Constraint("Vertical", 2))
sketch10.addConstraint(Sketcher.Constraint("Horizontal", 3))
sketch10.addConstraint(Sketcher.Constraint("Vertical", 4))
sketch10.addConstraint(Sketcher.Constraint("Horizontal", 5))
sketch10.addConstraint(Sketcher.Constraint("Vertical", 6))
sketch10.addConstraint(Sketcher.Constraint("Horizontal", 7))
sketch10.addConstraint(Sketcher.Constraint("Vertical", 8))
sketch10.addConstraint(Sketcher.Constraint("Horizontal", 9))
sketch10.addConstraint(Sketcher.Constraint("Vertical", 10))
sketch10.addConstraint(Sketcher.Constraint("Horizontal", 11))
sketch10.addConstraint(Sketcher.Constraint("Vertical", 12))
sketch10.addConstraint(Sketcher.Constraint("Horizontal", 13))
sketch10.addConstraint(Sketcher.Constraint("Vertical", 14))
sketch10.addConstraint(Sketcher.Constraint("Horizontal", 15))
sketch10.addConstraint(Sketcher.Constraint("Horizontal", 5, 2, 8, 2))
sketch10.addConstraint(Sketcher.Constraint("Horizontal", 7, 2, 10, 2))
sketch10.addConstraint(Sketcher.Constraint("Horizontal", 1, 2, 12, 2))
sketch10.addConstraint(Sketcher.Constraint("Horizontal", 3, 2, 14, 2))
sketch10.addConstraint(Sketcher.Constraint("Vertical", 3, 2, 4, 2))
sketch10.addConstraint(Sketcher.Constraint("Vertical", 2, 2, 5, 2))
sketch10.addConstraint(Sketcher.Constraint("Vertical", 11, 2, 12, 2))
sketch10.addConstraint(Sketcher.Constraint("Vertical", 10, 2, 13, 2))
sketch10.addConstraint(Sketcher.Constraint("Equal", 7, 9))
sketch10.addConstraint(Sketcher.Constraint("Equal", 2, 4))
sketch10.addConstraint(Sketcher.Constraint("DistanceX", 1, 2, 1, 1, Q("2 mm")))
sketch10.addConstraint(Sketcher.Constraint("DistanceY", 0, 2, 0, 1, Q("10 mm")))
sketch10.addConstraint(Sketcher.Constraint("DistanceY", -1, 1, 0, 2, Q("110 mm")))
sketch10.addConstraint(Sketcher.Constraint("DistanceY", -1, 1, 4, 2, Q("80 mm")))
sketch10.addConstraint(Sketcher.Constraint("DistanceX", 8, 2, 5, 2, Q("54 mm")))
sketch10.addConstraint(Sketcher.Constraint("DistanceX", -1, 1, 0, 2, Q("76.5 mm")))
pad4 = doc.addObject("PartDesign::Pad", "Pad003")
body.addObject(pad4)
pad4.Profile = sketch10
pad4.Length = 31
pad4.Reversed = True

# Sketch on YZ plane
sketch11 = doc.addObject("Sketcher::SketchObject", "Sketch010")
body.addObject(sketch11)
sketch11.AttachmentSupport = (doc.YZ_Plane, [""])
sketch11.MapMode = "FlatFace"
sketch11.AttachmentOffset = App.Placement(Vector(0, 0, 90.8), App.Rotation())
sketch11.addGeometry(Part.Circle(Vector(129, -3.5, 0), Vector(0, 0, 1), 1.1), False)
sketch11.addGeometry(Part.Circle(Vector(65, -3.5, 0), Vector(0, 0, 1), 1.1), False)
sketch11.addConstraint(Sketcher.Constraint("Equal", 0, 1))
sketch11.addConstraint(Sketcher.Constraint("Horizontal", 0, 3, 1, 3))
sketch11.addConstraint(Sketcher.Constraint("Diameter", 0, Q("2.3 mm")))
sketch11.addConstraint(Sketcher.Constraint("DistanceX", -1, 1, 0, 3, Q("129 mm")))
sketch11.addConstraint(Sketcher.Constraint("DistanceX", -1, 1, 1, 3, Q("65 mm")))
sketch11.addConstraint(Sketcher.Constraint("DistanceY", 0, 3, -1, 1, Q("3.5 mm")))
pocket6 = doc.addObject("PartDesign::Pocket", "Pocket005")
body.addObject(pocket6)
pocket6.Profile = sketch11
pocket6.Type = "ThroughAll"
pocket6.Midplane = True

# Sketch on YZ plane
sketch12 = doc.addObject("Sketcher::SketchObject", "Sketch011")
body.addObject(sketch12)
sketch12.AttachmentSupport = (doc.YZ_Plane, [""])
sketch12.MapMode = "FlatFace"
sketch12.AttachmentOffset = App.Placement(Vector(0, 0, 95), App.Rotation())
sketch12.addGeometry(Part.Circle(Vector(129, -3.5, 0), Vector(0, 0, 1), 3.5), False)
sketch12.addGeometry(Part.Circle(Vector(65, -3.5, 0), Vector(0, 0, 1), 3.5), False)
sketch12.addConstraint(Sketcher.Constraint("Equal", 0, 1))
sketch12.addConstraint(Sketcher.Constraint("Horizontal", 0, 3, 1, 3))
sketch12.addConstraint(Sketcher.Constraint("Diameter", 0, Q("7 mm")))
sketch12.addConstraint(Sketcher.Constraint("DistanceX", -1, 1, 0, 3, Q("129 mm")))
sketch12.addConstraint(Sketcher.Constraint("DistanceX", -1, 1, 1, 3, Q("65 mm")))
sketch12.addConstraint(Sketcher.Constraint("DistanceY", 0, 3, -1, 1, Q("3.5 mm")))
pocket7 = doc.addObject("PartDesign::Pocket", "Pocket006")
body.addObject(pocket7)
pocket7.Profile = sketch12
pocket7.Length = 1.5

# Sketch on YZ plane
sketch13 = doc.addObject("Sketcher::SketchObject", "Sketch012")
body.addObject(sketch13)
sketch13.AttachmentSupport = (doc.YZ_Plane, [""])
sketch13.MapMode = "FlatFace"
sketch13.AttachmentOffset = App.Placement(Vector(0, 0, 1.5), App.Rotation())
sketch13.addGeometry(Part.Circle(Vector(129, -3.5, 0), Vector(0, 0, 1), 3.5), False)
sketch13.addGeometry(Part.Circle(Vector(65, -3.5, 0), Vector(0, 0, 1), 3.5), False)
sketch13.addConstraint(Sketcher.Constraint("Equal", 0, 1))
sketch13.addConstraint(Sketcher.Constraint("Horizontal", 0, 3, 1, 3))
sketch13.addConstraint(Sketcher.Constraint("Diameter", 0, Q("7 mm")))
sketch13.addConstraint(Sketcher.Constraint("DistanceX", -1, 1, 0, 3, Q("129 mm")))
sketch13.addConstraint(Sketcher.Constraint("DistanceX", -1, 1, 1, 3, Q("65 mm")))
sketch13.addConstraint(Sketcher.Constraint("DistanceY", 0, 3, -1, 1, Q("3.5 mm")))
pocket8 = doc.addObject("PartDesign::Pocket", "Pocket007")
body.addObject(pocket8)
pocket8.Profile = sketch13
pocket8.Length = 1.5

# Sketch on XY plane
sketch14 = doc.addObject("Sketcher::SketchObject", "Sketch013")
body.addObject(sketch14)
sketch14.AttachmentSupport = (doc.XY_Plane, [""])
sketch14.MapMode = "FlatFace"
sketch14.AttachmentOffset = App.Placement(Vector(0, 0, -31), App.Rotation())
sketch14.addGeometry(Part.LineSegment(Vector(10, 63.5, 0), Vector(10, 60, 0)), False)
sketch14.addGeometry(Part.LineSegment(Vector(10, 60, 0), Vector(7, 60, 0)), False)
sketch14.addGeometry(Part.LineSegment(Vector(7, 60, 0), Vector(7, 63.5, 0)), False)
sketch14.addGeometry(Part.LineSegment(Vector(7, 63.5, 0), Vector(10, 63.5, 0)), False)
sketch14.addGeometry(Part.LineSegment(Vector(88, 63.5, 0), Vector(88, 60, 0)), False)
sketch14.addGeometry(Part.LineSegment(Vector(88, 60, 0), Vector(85, 60, 0)), False)
sketch14.addGeometry(Part.LineSegment(Vector(85, 60, 0), Vector(85, 63.5, 0)), False)
sketch14.addGeometry(Part.LineSegment(Vector(85, 63.5, 0), Vector(88, 63.5, 0)), False)
sketch14.addConstraint(Sketcher.Constraint("Coincident", 0, 2, 1, 1))
sketch14.addConstraint(Sketcher.Constraint("Coincident", 1, 2, 2, 1))
sketch14.addConstraint(Sketcher.Constraint("Coincident", 2, 2, 3, 1))
sketch14.addConstraint(Sketcher.Constraint("Coincident", 3, 2, 0, 1))
sketch14.addConstraint(Sketcher.Constraint("Coincident", 4, 2, 5, 1))
sketch14.addConstraint(Sketcher.Constraint("Coincident", 5, 2, 6, 1))
sketch14.addConstraint(Sketcher.Constraint("Coincident", 6, 2, 7, 1))
sketch14.addConstraint(Sketcher.Constraint("Coincident", 7, 2, 4, 1))
sketch14.addConstraint(Sketcher.Constraint("Vertical", 0))
sketch14.addConstraint(Sketcher.Constraint("Horizontal", 1))
sketch14.addConstraint(Sketcher.Constraint("Vertical", 2))
sketch14.addConstraint(Sketcher.Constraint("Horizontal", 3))
sketch14.addConstraint(Sketcher.Constraint("Vertical", 4))
sketch14.addConstraint(Sketcher.Constraint("Horizontal", 5))
sketch14.addConstraint(Sketcher.Constraint("Vertical", 6))
sketch14.addConstraint(Sketcher.Constraint("Horizontal", 7))
sketch14.addConstraint(Sketcher.Constraint("Horizontal", 1, 2, 4, 2))
sketch14.addConstraint(Sketcher.Constraint("Horizontal", 3, 2, 6, 2))
sketch14.addConstraint(Sketcher.Constraint("Equal", 3, 5))
sketch14.addConstraint(Sketcher.Constraint("DistanceX", 1, 2, 1, 1, Q("3 mm")))
sketch14.addConstraint(Sketcher.Constraint("DistanceY", 0, 2, 0, 1, Q("3.5 mm")))
sketch14.addConstraint(Sketcher.Constraint("DistanceX", -1, 1, 0, 2, Q("10 mm")))
sketch14.addConstraint(Sketcher.Constraint("DistanceY", -1, 1, 0, 2, Q("60 mm")))
sketch14.addConstraint(Sketcher.Constraint("DistanceX", -1, 1, 4, 2, Q("88 mm")))
pocket9 = doc.addObject("PartDesign::Pocket", "Pocket008")
body.addObject(pocket9)
pocket9.Profile = sketch14
pocket9.Length = 17
pocket9.Reversed = True

doc.recompute()
